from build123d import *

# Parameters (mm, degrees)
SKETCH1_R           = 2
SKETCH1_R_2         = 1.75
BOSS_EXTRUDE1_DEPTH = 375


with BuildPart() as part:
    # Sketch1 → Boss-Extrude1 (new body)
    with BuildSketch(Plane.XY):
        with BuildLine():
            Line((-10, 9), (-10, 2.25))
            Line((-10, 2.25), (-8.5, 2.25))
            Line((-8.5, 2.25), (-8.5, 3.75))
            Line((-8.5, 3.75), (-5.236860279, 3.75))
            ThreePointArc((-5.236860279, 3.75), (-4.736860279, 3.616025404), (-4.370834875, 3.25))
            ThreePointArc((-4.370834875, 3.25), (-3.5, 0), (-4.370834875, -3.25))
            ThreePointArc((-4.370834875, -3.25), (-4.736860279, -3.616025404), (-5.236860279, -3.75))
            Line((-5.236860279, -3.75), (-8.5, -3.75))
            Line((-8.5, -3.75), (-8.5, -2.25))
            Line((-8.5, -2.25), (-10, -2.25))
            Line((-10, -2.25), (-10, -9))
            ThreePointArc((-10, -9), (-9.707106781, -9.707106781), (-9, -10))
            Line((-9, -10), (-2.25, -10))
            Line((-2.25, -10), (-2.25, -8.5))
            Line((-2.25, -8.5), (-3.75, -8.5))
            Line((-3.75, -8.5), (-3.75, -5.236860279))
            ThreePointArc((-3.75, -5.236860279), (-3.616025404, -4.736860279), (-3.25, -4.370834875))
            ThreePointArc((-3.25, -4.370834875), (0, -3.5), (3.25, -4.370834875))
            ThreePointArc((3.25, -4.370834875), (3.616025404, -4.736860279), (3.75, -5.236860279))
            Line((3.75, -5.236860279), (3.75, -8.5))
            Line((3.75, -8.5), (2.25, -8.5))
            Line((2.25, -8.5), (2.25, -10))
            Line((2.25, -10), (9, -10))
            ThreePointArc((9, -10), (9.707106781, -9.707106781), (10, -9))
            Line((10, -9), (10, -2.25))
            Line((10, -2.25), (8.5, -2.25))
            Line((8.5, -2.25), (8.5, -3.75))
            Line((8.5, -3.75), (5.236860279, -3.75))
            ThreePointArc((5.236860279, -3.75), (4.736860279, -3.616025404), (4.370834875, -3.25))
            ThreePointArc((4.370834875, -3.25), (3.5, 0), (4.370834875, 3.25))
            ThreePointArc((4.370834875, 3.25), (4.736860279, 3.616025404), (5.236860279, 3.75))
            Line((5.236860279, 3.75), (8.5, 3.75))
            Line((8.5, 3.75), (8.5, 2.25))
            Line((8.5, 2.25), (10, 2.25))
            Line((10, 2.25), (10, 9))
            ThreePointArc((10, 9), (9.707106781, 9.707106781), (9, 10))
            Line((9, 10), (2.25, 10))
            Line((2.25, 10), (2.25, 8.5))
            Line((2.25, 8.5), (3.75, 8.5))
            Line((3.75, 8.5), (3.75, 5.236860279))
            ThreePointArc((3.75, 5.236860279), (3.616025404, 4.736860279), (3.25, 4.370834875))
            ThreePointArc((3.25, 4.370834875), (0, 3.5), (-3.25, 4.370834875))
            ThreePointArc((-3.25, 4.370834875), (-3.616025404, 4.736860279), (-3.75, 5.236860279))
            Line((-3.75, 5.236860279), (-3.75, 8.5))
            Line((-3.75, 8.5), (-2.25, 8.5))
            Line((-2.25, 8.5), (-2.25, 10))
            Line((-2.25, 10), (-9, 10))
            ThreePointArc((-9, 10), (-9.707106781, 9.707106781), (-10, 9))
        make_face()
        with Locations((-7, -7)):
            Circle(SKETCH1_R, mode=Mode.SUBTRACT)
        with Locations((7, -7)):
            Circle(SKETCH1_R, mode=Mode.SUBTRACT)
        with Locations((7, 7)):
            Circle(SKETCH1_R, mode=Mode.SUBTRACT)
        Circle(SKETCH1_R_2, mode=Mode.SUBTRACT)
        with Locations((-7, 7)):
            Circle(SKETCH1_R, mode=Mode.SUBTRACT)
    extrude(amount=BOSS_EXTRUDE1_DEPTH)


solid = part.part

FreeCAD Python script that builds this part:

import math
import FreeCAD as App
import Part
import Sketcher
Q = App.Units.Quantity

doc = App.newDocument("Part")
body = doc.addObject("PartDesign::Body", "Body")

sketch1 = body.newObject("Sketcher::SketchObject", "Sketch")
sketch1.AttachmentSupport = (doc.getObject("XY_Plane"), [""])
sketch1.MapMode = "FlatFace"
sketch1.addGeometry([
    Part.LineSegment(App.Vector(-10, 9, 0), App.Vector(-10, 2.25, 0)),
    Part.LineSegment(App.Vector(-10, 2.25, 0), App.Vector(-8.5, 2.25, 0)),
    Part.LineSegment(App.Vector(-8.5, 2.25, 0), App.Vector(-8.5, 3.75, 0)),
    Part.LineSegment(App.Vector(-8.5, 3.75, 0), App.Vector(-5.23686, 3.75, 0)),
    Part.ArcOfCircle(Part.Circle(App.Vector(-5.23686, 2.75, 0), App.Vector(0, 0, 1), 1), math.radians(30), math.radians(90)),
    Part.ArcOfCircle(Part.Circle(App.Vector(-10, 0, 0), App.Vector(0, 0, 1), 6.5), math.radians(-30), math.radians(30)),
    Part.ArcOfCircle(Part.Circle(App.Vector(-5.23686, -2.75, 0), App.Vector(0, 0, 1), 1), math.radians(-90), math.radians(-30)),
    Part.LineSegment(App.Vector(-5.23686, -3.75, 0), App.Vector(-8.5, -3.75, 0)),
    Part.LineSegment(App.Vector(-8.5, -3.75, 0), App.Vector(-8.5, -2.25, 0)),
    Part.LineSegment(App.Vector(-8.5, -2.25, 0), App.Vector(-10, -2.25, 0)),
    Part.LineSegment(App.Vector(-10, -2.25, 0), App.Vector(-10, -9, 0)),
    Part.ArcOfCircle(Part.Circle(App.Vector(-9, -9, 0), App.Vector(0, 0, 1), 1), math.radians(-180), math.radians(-90)),
    Part.LineSegment(App.Vector(-9, -10, 0), App.Vector(-2.25, -10, 0)),
    Part.LineSegment(App.Vector(-2.25, -10, 0), App.Vector(-2.25, -8.5, 0)),
    Part.LineSegment(App.Vector(-2.25, -8.5, 0), App.Vector(-3.75, -8.5, 0)),
    Part.LineSegment(App.Vector(-3.75, -8.5, 0), App.Vector(-3.75, -5.23686, 0)),
    Part.ArcOfCircle(Part.Circle(App.Vector(-2.75, -5.23686, 0), App.Vector(0, 0, 1), 1), math.radians(120), math.radians(180)),
    Part.ArcOfCircle(Part.Circle(App.Vector(0, -10, 0), App.Vector(0, 0, 1), 6.5), math.radians(60), math.radians(120)),
    Part.ArcOfCircle(Part.Circle(App.Vector(2.75, -5.23686, 0), App.Vector(0, 0, 1), 1), math.radians(0), math.radians(60)),
    Part.LineSegment(App.Vector(3.75, -5.23686, 0), App.Vector(3.75, -8.5, 0)),
    Part.LineSegment(App.Vector(3.75, -8.5, 0), App.Vector(2.25, -8.5, 0)),
    Part.LineSegment(App.Vector(2.25, -8.5, 0), App.Vector(2.25, -10, 0)),
    Part.LineSegment(App.Vector(2.25, -10, 0), App.Vector(9, -10, 0)),
    Part.ArcOfCircle(Part.Circle(App.Vector(9, -9, 0), App.Vector(0, 0, 1), 1), math.radians(-90), math.radians(0)),
    Part.LineSegment(App.Vector(10, -9, 0), App.Vector(10, -2.25, 0)),
    Part.LineSegment(App.Vector(10, -2.25, 0), App.Vector(8.5, -2.25, 0)),
    Part.LineSegment(App.Vector(8.5, -2.25, 0), App.Vector(8.5, -3.75, 0)),
    Part.LineSegment(App.Vector(8.5, -3.75, 0), App.Vector(5.23686, -3.75, 0)),
    Part.ArcOfCircle(Part.Circle(App.Vector(5.23686, -2.75, 0), App.Vector(0, 0, 1), 1), math.radians(-150), math.radians(-90)),
    Part.ArcOfCircle(Part.Circle(App.Vector(10, 0, 0), App.Vector(0, 0, 1), 6.5), math.radians(150), math.radians(210)),
    Part.ArcOfCircle(Part.Circle(App.Vector(5.23686, 2.75, 0), App.Vector(0, 0, 1), 1), math.radians(90), math.radians(150)),
    Part.LineSegment(App.Vector(5.23686, 3.75, 0), App.Vector(8.5, 3.75, 0)),
    Part.LineSegment(App.Vector(8.5, 3.75, 0), App.Vector(8.5, 2.25, 0)),
    Part.LineSegment(App.Vector(8.5, 2.25, 0), App.Vector(10, 2.25, 0)),
    Part.LineSegment(App.Vector(10, 2.25, 0), App.Vector(10, 9, 0)),
    Part.ArcOfCircle(Part.Circle(App.Vector(9, 9, 0), App.Vector(0, 0, 1), 1), math.radians(0), math.radians(90)),
    Part.LineSegment(App.Vector(9, 10, 0), App.Vector(2.25, 10, 0)),
    Part.LineSegment(App.Vector(2.25, 10, 0), App.Vector(2.25, 8.5, 0)),
    Part.LineSegment(App.Vector(2.25, 8.5, 0), App.Vector(3.75, 8.5, 0)),
    Part.LineSegment(App.Vector(3.75, 8.5, 0), App.Vector(3.75, 5.23686, 0)),
    Part.ArcOfCircle(Part.Circle(App.Vector(2.75, 5.23686, 0), App.Vector(0, 0, 1), 1), math.radians(-60), math.radians(0)),
    Part.ArcOfCircle(Part.Circle(App.Vector(0, 10, 0), App.Vector(0, 0, 1), 6.5), math.radians(-120), math.radians(-60)),
    Part.ArcOfCircle(Part.Circle(App.Vector(-2.75, 5.23686, 0), App.Vector(0, 0, 1), 1), math.radians(180), math.radians(240)),
    Part.LineSegment(App.Vector(-3.75, 5.23686, 0), App.Vector(-3.75, 8.5, 0)),
    Part.LineSegment(App.Vector(-3.75, 8.5, 0), App.Vector(-2.25, 8.5, 0)),
    Part.LineSegment(App.Vector(-2.25, 8.5, 0), App.Vector(-2.25, 10, 0)),
    Part.LineSegment(App.Vector(-2.25, 10, 0), App.Vector(-9, 10, 0)),
    Part.ArcOfCircle(Part.Circle(App.Vector(-9, 9, 0), App.Vector(0, 0, 1), 1), math.radians(90), math.radians(180)),
    Part.Circle(App.Vector(-7, -7, 0), App.Vector(0, 0, 1), 2),
    Part.Circle(App.Vector(7, -7, 0), App.Vector(0, 0, 1), 2),
    Part.Circle(App.Vector(-7, 7, 0), App.Vector(0, 0, 1), 2),
    Part.Circle(App.Vector(0, 0, 0), App.Vector(0, 0, 1), 1.75),
    Part.Circle(App.Vector(7, 7, 0), App.Vector(0, 0, 1), 2),
], False)
sketch1.addConstraint([
    Sketcher.Constraint("Coincident", 0, 2, 1, 1),
    Sketcher.Constraint("Coincident", 1, 2, 2, 1),
    Sketcher.Constraint("Coincident", 2, 2, 3, 1),
    Sketcher.Constraint("Tangent", 3, 2, 4, 2),
    Sketcher.Constraint("Tangent", 4, 1, 5, 2),
    Sketcher.Constraint("Tangent", 5, 1, 6, 2),
    Sketcher.Constraint("Tangent", 6, 1, 7, 1),
    Sketcher.Constraint("Coincident", 7, 2, 8, 1),
    Sketcher.Constraint("Coincident", 8, 2, 9, 1),
    Sketcher.Constraint("Coincident", 9, 2, 10, 1),
    Sketcher.Constraint("Tangent", 10, 2, 11, 1),
    Sketcher.Constraint("Tangent", 11, 2, 12, 1),
    Sketcher.Constraint("Coincident", 12, 2, 13, 1),
    Sketcher.Constraint("Coincident", 13, 2, 14, 1),
    Sketcher.Constraint("Coincident", 14, 2, 15, 1),
    Sketcher.Constraint("Tangent", 15, 2, 16, 2),
    Sketcher.Constraint("Tangent", 16, 1, 17, 2),
    Sketcher.Constraint("Tangent", 17, 1, 18, 2),
    Sketcher.Constraint("Tangent", 18, 1, 19, 1),
    Sketcher.Constraint("Coincident", 19, 2, 20, 1),
    Sketcher.Constraint("Coincident", 20, 2, 21, 1),
    Sketcher.Constraint("Coincident", 21, 2, 22, 1),
    Sketcher.Constraint("Tangent", 22, 2, 23, 1),
    Sketcher.Constraint("Tangent", 23, 2, 24, 1),
    Sketcher.Constraint("Coincident", 24, 2, 25, 1),
    Sketcher.Constraint("Coincident", 25, 2, 26, 1),
    Sketcher.Constraint("Coincident", 26, 2, 27, 1),
    Sketcher.Constraint("Tangent", 27, 2, 28, 2),
    Sketcher.Constraint("Tangent", 28, 1, 29, 2),
    Sketcher.Constraint("Tangent", 29, 1, 30, 2),
    Sketcher.Constraint("Tangent", 30, 1, 31, 1),
    Sketcher.Constraint("Coincident", 31, 2, 32, 1),
    Sketcher.Constraint("Coincident", 32, 2, 33, 1),
    Sketcher.Constraint("Coincident", 33, 2, 34, 1),
    Sketcher.Constraint("Tangent", 34, 2, 35, 1),
    Sketcher.Constraint("Tangent", 35, 2, 36, 1),
    Sketcher.Constraint("Coincident", 36, 2, 37, 1),
    Sketcher.Constraint("Coincident", 37, 2, 38, 1),
    Sketcher.Constraint("Coincident", 38, 2, 39, 1),
    Sketcher.Constraint("Tangent", 39, 2, 40, 2),
    Sketcher.Constraint("Tangent", 40, 1, 41, 2),
    Sketcher.Constraint("Tangent", 41, 1, 42, 2),
    Sketcher.Constraint("Tangent", 42, 1, 43, 1),
    Sketcher.Constraint("Coincident", 43, 2, 44, 1),
    Sketcher.Constraint("Coincident", 44, 2, 45, 1),
    Sketcher.Constraint("Coincident", 45, 2, 46, 1),
    Sketcher.Constraint("Tangent", 46, 2, 47, 1),
    Sketcher.Constraint("Tangent", 47, 2, 0, 1),
    Sketcher.Constraint("Vertical", 0),
    Sketcher.Constraint("Horizontal", 1),
    Sketcher.Constraint("Vertical", 2),
    Sketcher.Constraint("Horizontal", 3),
    Sketcher.Constraint("Horizontal", 7),
    Sketcher.Constraint("Vertical", 8),
    Sketcher.Constraint("Horizontal", 9),
    Sketcher.Constraint("Vertical", 10),
    Sketcher.Constraint("Horizontal", 12),
    Sketcher.Constraint("Vertical", 13),
    Sketcher.Constraint("Horizontal", 14),
    Sketcher.Constraint("Vertical", 15),
    Sketcher.Constraint("Vertical", 19),
    Sketcher.Constraint("Horizontal", 20),
    Sketcher.Constraint("Vertical", 21),
    Sketcher.Constraint("Horizontal", 22),
    Sketcher.Constraint("Vertical", 24),
    Sketcher.Constraint("Horizontal", 25),
    Sketcher.Constraint("Vertical", 26),
    Sketcher.Constraint("Horizontal", 27),
    Sketcher.Constraint("Horizontal", 31),
    Sketcher.Constraint("Vertical", 32),
    Sketcher.Constraint("Horizontal", 33),
    Sketcher.Constraint("Vertical", 34),
    Sketcher.Constraint("Horizontal", 36),
    Sketcher.Constraint("Vertical", 37),
    Sketcher.Constraint("Horizontal", 38),
    Sketcher.Constraint("Vertical", 39),
    Sketcher.Constraint("Vertical", 43),
    Sketcher.Constraint("Horizontal", 44),
    Sketcher.Constraint("Vertical", 45),
    Sketcher.Constraint("Horizontal", 46),
    Sketcher.Constraint("Coincident", 51, 3, -1, 1),
    Sketcher.Constraint("Equal", 4, 6),
    Sketcher.Constraint("Equal", 6, 11),
    Sketcher.Constraint("Equal", 11, 16),
    Sketcher.Constraint("Equal", 5, 17),
    Sketcher.Constraint("Equal", 16, 18),
    Sketcher.Constraint("Equal", 18, 23),
    Sketcher.Constraint("Equal", 23, 28),
    Sketcher.Constraint("Equal", 17, 29),
    Sketcher.Constraint("Equal", 28, 30),
    Sketcher.Constraint("Equal", 30, 35),
    Sketcher.Constraint("Equal", 35, 40),
    Sketcher.Constraint("Equal", 29, 41),
    Sketcher.Constraint("Equal", 40, 42),
    Sketcher.Constraint("Equal", 42, 47),
    Sketcher.Constraint("Equal", 48, 49),
    Sketcher.Constraint("Equal", 49, 50),
    Sketcher.Constraint("Equal", 50, 52),
    Sketcher.Constraint("Symmetric", 4, 3, 28, 3, -1, 1),
    Sketcher.Constraint("Symmetric", 6, 3, 30, 3, -1, 1),
    Sketcher.Constraint("Symmetric", 11, 3, 35, 3, -1, 1),
    Sketcher.Constraint("Symmetric", 16, 3, 40, 3, -1, 1),
    Sketcher.Constraint("Symmetric", 18, 3, 42, 3, -1, 1),
    Sketcher.Constraint("Symmetric", 23, 3, 47, 3, -1, 1),
    Sketcher.Constraint("Symmetric", 49, 3, 50, 3, -1, 1),
    Sketcher.Constraint("Symmetric", 48, 3, 52, 3, -1, 1),
    Sketcher.Constraint("Symmetric", 1, 2, 25, 2, -1, 1),
    Sketcher.Constraint("Symmetric", 8, 2, 32, 2, -1, 1),
    Sketcher.Constraint("Symmetric", 13, 2, 37, 2, -1, 1),
    Sketcher.Constraint("Symmetric", 20, 2, 44, 2, -1, 1),
    Sketcher.Constraint("Symmetric", 16, 3, 18, 3, -2),
    Sketcher.Constraint("Symmetric", 11, 3, 23, 3, -2),
    Sketcher.Constraint("Symmetric", 6, 3, 28, 3, -2),
    Sketcher.Constraint("Symmetric", 48, 3, 49, 3, -2),
    Sketcher.Constraint("Symmetric", 13, 2, 20, 2, -2),
    Sketcher.Constraint("Symmetric", 8, 2, 25, 2, -2),
    Sketcher.Constraint("Horizontal", 17, 3, 11, 2),
    Sketcher.Constraint("Vertical", 5, 3, 0, 2),
    Sketcher.Constraint("Equal", 9, 14),
    Sketcher.Constraint("Equal", 46, 0),
    Sketcher.Constraint("Equal", 44, 2),
    Sketcher.Constraint("Equal", 8, 13),
    Sketcher.Constraint("Equal", 31, 15),
    Sketcher.Constraint("Diameter", 48, Q("4 mm")),
    Sketcher.Constraint("Radius", 4, Q("1 mm")),
    Sketcher.Constraint("Diameter", 51, Q("3.5 mm")),
    Sketcher.Constraint("Radius", 5, Q("6.5 mm")),
    Sketcher.Constraint("DistanceX", 1, 1, 1, 2, Q("1.5 mm")),
    Sketcher.Constraint("DistanceX", 5, 3, -1, 1, Q("10 mm")),
    Sketcher.Constraint("DistanceX", 48, 3, -1, 1, Q("7 mm")),
    Sketcher.Constraint("DistanceY", 48, 3, -1, 1, Q("7 mm")),
    Sketcher.Constraint("DistanceX", 12, 1, 12, 2, Q("6.75 mm")),
])
pad1 = body.newObject("PartDesign::Pad", "Pad")
pad1.Profile = sketch1
pad1.Length = 375

doc.recompute()
